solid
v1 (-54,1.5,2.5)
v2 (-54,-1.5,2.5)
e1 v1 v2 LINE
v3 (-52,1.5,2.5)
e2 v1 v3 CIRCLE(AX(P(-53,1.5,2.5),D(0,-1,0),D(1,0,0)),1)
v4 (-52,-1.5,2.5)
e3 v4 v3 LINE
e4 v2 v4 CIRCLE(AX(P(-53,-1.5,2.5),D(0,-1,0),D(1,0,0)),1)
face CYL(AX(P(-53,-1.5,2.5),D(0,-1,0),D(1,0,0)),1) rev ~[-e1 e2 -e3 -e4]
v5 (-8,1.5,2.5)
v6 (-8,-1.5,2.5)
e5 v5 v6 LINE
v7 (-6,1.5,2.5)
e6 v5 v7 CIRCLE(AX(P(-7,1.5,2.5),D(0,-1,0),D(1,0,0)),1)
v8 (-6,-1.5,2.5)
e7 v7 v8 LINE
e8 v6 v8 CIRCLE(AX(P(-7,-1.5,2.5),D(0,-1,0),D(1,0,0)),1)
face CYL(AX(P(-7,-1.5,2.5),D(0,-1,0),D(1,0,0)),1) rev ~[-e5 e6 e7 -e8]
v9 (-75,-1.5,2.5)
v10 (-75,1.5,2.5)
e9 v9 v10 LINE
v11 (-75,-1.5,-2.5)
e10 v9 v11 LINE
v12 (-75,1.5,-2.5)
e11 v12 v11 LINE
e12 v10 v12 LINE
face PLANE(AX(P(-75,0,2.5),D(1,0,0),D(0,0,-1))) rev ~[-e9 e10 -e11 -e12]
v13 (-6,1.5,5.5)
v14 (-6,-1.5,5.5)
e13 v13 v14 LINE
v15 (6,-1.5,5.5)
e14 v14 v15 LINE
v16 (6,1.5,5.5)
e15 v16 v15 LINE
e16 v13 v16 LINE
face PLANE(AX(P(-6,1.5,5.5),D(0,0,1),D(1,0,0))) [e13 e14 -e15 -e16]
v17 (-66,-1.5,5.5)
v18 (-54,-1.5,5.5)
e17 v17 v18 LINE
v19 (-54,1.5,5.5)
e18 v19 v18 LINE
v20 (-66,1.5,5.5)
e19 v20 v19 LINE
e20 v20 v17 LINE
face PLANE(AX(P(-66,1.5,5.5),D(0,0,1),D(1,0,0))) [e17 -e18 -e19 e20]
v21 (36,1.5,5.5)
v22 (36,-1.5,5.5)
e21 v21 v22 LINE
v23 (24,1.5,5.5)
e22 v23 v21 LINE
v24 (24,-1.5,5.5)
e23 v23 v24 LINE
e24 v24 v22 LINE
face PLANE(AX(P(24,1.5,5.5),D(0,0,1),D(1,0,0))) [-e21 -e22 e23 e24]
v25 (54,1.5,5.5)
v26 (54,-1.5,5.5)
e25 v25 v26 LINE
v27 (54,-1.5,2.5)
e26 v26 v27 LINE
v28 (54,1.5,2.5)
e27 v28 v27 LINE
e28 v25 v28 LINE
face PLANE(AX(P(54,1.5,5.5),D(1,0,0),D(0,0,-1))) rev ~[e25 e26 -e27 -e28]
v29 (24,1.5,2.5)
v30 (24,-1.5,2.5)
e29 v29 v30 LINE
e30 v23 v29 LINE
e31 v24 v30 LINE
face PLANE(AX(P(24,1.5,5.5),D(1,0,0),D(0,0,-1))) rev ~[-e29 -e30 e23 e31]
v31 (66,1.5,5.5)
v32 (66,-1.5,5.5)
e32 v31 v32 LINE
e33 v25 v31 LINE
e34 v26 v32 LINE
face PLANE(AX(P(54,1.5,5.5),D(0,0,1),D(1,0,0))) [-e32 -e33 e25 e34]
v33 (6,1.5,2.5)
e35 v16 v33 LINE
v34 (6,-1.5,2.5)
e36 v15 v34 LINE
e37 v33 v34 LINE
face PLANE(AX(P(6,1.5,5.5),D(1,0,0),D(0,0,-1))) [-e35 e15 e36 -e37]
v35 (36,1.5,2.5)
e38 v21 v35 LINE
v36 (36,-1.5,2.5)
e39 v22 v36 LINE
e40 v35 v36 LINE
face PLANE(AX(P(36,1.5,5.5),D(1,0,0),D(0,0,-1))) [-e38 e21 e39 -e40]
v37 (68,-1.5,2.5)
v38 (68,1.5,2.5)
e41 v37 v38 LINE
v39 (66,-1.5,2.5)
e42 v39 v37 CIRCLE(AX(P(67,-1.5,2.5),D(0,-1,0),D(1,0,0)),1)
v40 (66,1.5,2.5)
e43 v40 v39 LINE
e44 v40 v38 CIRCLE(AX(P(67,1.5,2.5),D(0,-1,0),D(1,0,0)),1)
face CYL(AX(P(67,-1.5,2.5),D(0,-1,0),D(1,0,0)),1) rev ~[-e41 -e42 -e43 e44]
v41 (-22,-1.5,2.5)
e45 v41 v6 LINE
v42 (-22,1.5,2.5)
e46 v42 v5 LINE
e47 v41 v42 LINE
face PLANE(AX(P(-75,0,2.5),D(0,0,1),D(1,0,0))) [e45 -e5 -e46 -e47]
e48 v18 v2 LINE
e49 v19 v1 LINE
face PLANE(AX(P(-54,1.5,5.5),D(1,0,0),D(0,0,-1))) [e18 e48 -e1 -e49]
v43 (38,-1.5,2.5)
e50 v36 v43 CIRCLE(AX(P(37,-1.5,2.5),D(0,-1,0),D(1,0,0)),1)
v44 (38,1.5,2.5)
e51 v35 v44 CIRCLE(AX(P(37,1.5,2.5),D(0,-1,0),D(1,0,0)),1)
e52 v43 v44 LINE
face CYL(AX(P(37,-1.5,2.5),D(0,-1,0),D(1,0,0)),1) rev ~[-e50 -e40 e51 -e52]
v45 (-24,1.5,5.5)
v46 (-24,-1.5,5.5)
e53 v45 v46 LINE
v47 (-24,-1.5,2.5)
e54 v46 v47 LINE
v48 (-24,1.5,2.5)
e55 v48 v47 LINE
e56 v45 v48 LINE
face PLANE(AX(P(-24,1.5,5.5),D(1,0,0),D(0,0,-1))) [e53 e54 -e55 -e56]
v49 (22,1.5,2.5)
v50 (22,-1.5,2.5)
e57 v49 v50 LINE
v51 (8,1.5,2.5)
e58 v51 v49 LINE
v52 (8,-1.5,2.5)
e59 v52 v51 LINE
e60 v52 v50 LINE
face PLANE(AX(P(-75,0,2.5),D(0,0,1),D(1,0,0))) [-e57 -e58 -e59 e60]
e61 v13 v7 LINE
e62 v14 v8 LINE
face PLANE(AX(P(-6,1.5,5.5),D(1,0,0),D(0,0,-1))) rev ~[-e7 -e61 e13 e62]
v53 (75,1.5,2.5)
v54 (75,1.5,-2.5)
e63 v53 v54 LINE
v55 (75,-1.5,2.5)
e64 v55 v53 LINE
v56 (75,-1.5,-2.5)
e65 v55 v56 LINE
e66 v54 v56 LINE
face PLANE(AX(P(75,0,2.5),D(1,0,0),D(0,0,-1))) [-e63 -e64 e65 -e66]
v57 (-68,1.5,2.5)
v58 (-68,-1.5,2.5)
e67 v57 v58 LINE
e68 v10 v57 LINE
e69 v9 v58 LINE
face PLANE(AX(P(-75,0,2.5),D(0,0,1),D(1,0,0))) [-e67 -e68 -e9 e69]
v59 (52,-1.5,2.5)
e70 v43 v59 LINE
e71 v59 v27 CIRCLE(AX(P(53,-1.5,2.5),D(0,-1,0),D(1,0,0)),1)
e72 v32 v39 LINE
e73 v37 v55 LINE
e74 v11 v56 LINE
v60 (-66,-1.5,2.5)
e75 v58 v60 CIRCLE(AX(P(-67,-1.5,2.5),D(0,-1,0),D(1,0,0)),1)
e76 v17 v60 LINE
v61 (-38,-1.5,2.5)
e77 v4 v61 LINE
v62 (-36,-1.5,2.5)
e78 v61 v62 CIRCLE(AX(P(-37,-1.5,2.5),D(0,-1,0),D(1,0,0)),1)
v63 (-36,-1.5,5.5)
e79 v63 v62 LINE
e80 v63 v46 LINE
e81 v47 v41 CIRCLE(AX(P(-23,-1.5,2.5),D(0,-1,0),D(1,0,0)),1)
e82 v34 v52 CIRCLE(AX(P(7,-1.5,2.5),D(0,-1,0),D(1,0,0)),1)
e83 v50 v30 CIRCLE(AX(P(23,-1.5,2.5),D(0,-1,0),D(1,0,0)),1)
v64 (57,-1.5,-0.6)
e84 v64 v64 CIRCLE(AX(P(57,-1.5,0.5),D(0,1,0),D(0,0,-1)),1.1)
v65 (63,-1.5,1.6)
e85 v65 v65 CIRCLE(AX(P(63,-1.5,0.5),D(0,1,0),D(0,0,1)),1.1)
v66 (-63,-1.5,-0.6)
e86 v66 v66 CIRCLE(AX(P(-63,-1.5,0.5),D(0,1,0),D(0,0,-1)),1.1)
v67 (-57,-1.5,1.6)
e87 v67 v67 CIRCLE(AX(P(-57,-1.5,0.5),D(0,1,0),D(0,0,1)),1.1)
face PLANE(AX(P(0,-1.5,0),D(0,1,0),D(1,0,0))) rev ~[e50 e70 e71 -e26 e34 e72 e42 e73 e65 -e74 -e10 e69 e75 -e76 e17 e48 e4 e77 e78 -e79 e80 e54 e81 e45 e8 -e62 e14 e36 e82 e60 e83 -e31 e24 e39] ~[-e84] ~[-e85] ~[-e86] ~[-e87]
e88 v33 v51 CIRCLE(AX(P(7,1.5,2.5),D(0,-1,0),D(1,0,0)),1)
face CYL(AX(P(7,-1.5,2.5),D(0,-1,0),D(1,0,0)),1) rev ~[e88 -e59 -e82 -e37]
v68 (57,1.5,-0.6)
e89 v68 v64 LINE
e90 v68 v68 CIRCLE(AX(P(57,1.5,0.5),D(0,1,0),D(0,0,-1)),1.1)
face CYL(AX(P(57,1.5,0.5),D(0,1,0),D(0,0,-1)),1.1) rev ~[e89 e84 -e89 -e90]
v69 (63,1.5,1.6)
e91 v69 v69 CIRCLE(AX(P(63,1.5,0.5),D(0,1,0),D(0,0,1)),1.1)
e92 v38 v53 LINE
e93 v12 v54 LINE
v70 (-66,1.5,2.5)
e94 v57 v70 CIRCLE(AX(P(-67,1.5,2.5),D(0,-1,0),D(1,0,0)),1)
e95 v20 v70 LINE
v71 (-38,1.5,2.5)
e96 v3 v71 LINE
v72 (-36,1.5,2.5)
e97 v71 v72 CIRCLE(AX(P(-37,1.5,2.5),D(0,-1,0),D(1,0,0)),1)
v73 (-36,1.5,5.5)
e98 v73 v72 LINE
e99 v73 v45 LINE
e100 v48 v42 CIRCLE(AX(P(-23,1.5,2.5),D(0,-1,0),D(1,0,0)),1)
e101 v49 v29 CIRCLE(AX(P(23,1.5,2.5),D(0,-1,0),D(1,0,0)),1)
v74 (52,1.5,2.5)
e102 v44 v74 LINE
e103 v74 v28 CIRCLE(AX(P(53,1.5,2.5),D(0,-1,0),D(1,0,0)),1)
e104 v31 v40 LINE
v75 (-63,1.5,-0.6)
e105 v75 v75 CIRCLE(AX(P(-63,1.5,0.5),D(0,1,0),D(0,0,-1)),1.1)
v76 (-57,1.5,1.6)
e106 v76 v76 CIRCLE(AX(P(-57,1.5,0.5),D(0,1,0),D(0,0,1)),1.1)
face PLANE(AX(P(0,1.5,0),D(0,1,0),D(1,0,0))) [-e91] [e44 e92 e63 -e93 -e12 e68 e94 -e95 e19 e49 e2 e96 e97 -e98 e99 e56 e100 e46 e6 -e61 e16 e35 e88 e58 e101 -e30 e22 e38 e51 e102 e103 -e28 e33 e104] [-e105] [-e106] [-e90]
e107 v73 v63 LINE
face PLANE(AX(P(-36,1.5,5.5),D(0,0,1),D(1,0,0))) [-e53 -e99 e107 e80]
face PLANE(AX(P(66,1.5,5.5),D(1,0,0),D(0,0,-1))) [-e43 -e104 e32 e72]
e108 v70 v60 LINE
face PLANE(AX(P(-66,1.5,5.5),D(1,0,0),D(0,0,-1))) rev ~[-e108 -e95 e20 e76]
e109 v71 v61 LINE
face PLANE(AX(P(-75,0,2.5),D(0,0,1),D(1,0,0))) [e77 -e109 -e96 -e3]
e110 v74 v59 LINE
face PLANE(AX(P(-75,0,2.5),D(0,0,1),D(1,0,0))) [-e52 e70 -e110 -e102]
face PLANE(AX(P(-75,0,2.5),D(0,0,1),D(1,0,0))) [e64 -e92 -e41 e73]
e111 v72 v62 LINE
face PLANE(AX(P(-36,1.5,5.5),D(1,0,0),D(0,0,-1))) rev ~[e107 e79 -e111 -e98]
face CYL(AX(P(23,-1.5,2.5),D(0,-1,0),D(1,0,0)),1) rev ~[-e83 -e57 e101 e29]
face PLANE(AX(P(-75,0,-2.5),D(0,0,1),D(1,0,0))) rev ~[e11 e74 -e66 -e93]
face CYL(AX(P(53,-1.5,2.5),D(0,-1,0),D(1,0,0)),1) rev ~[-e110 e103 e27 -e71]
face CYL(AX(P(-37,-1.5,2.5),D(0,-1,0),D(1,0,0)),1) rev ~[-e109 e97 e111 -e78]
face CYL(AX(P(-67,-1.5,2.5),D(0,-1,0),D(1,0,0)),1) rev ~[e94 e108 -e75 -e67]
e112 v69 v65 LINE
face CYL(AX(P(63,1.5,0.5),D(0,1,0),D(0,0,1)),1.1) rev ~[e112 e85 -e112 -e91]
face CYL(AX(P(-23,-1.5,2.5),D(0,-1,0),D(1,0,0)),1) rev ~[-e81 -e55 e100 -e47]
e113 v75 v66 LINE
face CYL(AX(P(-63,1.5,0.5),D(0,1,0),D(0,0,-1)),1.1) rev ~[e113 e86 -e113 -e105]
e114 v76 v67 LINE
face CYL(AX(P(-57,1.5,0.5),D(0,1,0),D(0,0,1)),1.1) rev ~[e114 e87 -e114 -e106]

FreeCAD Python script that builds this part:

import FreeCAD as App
import Part
import Sketcher

V = App.Vector

doc = App.newDocument("Part")
body = doc.addObject("PartDesign::Body", "Body")

# Sketch on XZ plane
sketch1 = doc.addObject("Sketcher::SketchObject", "Sketch")
body.addObject(sketch1)
sketch1.AttachmentSupport = (doc.XZ_Plane, [""])
sketch1.MapMode = "FlatFace"
sketch1.addGeometry(Part.LineSegment(V(-75, -2.5, 0), V(-75, 2.5, 0)), False)
sketch1.addGeometry(Part.LineSegment(V(-75, 2.5, 0), V(75, 2.5, 0)), False)
sketch1.addGeometry(Part.LineSegment(V(75, 2.5, 0), V(75, -2.5, 0)), False)
sketch1.addGeometry(Part.LineSegment(V(75, -2.5, 0), V(-75, -2.5, 0)), False)
sketch1.addConstraint(Sketcher.Constraint("Coincident", 0, 2, 1, 1))
sketch1.addConstraint(Sketcher.Constraint("Coincident", 1, 2, 2, 1))
sketch1.addConstraint(Sketcher.Constraint("Coincident", 2, 2, 3, 1))
sketch1.addConstraint(Sketcher.Constraint("Coincident", 3, 2, 0, 1))
sketch1.addConstraint(Sketcher.Constraint("Vertical", 0))
sketch1.addConstraint(Sketcher.Constraint("Horizontal", 1))
sketch1.addConstraint(Sketcher.Constraint("Vertical", 2))
sketch1.addConstraint(Sketcher.Constraint("Horizontal", 3))
sketch1.addConstraint(Sketcher.Constraint("Symmetric", 0, 2, 2, 2, -1, 1))
sketch1.addConstraint(Sketcher.Constraint("DistanceX", 1, 1, 1, 2, 150.0))
sketch1.addConstraint(Sketcher.Constraint("DistanceY", 0, 1, 0, 2, 5.0))
pad1 = doc.addObject("PartDesign::Pad", "Pad")
body.addObject(pad1)
pad1.Profile = sketch1
pad1.Length = 3
pad1.Midplane = True

# Sketch on XZ plane
sketch2 = doc.addObject("Sketcher::SketchObject", "Sketch001")
body.addObject(sketch2)
sketch2.AttachmentSupport = (doc.XZ_Plane, [""])
sketch2.MapMode = "FlatFace"
sketch2.AttachmentOffset = App.Placement(V(0, 0, -1.5), App.Rotation())
sketch2.addGeometry(Part.LineSegment(V(-66, 2.5, 0), V(-66, 5.5, 0)), False)
sketch2.addGeometry(Part.LineSegment(V(-66, 5.5, 0), V(-54, 5.5, 0)), False)
sketch2.addGeometry(Part.LineSegment(V(-54, 5.5, 0), V(-54, 2.5, 0)), False)
sketch2.addGeometry(Part.LineSegment(V(-54, 2.5, 0), V(-66, 2.5, 0)), False)
sketch2.addGeometry(Part.LineSegment(V(-36, 2.5, 0), V(-36, 5.5, 0)), False)
sketch2.addGeometry(Part.LineSegment(V(-36, 5.5, 0), V(-24, 5.5, 0)), False)
sketch2.addGeometry(Part.LineSegment(V(-24, 5.5, 0), V(-24, 2.5, 0)), False)
sketch2.addGeometry(Part.LineSegment(V(-24, 2.5, 0), V(-36, 2.5, 0)), False)
sketch2.addGeometry(Part.LineSegment(V(-6, 2.5, 0), V(-6, 5.5, 0)), False)
sketch2.addGeometry(Part.LineSegment(V(-6, 5.5, 0), V(6, 5.5, 0)), False)
sketch2.addGeometry(Part.LineSegment(V(6, 5.5, 0), V(6, 2.5, 0)), False)
sketch2.addGeometry(Part.LineSegment(V(6, 2.5, 0), V(-6, 2.5, 0)), False)
sketch2.addGeometry(Part.LineSegment(V(24, 2.5, 0), V(24, 5.5, 0)), False)
sketch2.addGeometry(Part.LineSegment(V(24, 5.5, 0), V(36, 5.5, 0)), False)
sketch2.addGeometry(Part.LineSegment(V(36, 5.5, 0), V(36, 2.5, 0)), False)
sketch2.addGeometry(Part.LineSegment(V(36, 2.5, 0), V(24, 2.5, 0)), False)
sketch2.addGeometry(Part.LineSegment(V(54, 2.5, 0), V(54, 5.5, 0)), False)
sketch2.addGeometry(Part.LineSegment(V(54, 5.5, 0), V(66, 5.5, 0)), False)
sketch2.addGeometry(Part.LineSegment(V(66, 5.5, 0), V(66, 2.5, 0)), False)
sketch2.addGeometry(Part.LineSegment(V(66, 2.5, 0), V(54, 2.5, 0)), False)
sketch2.addConstraint(Sketcher.Constraint("Coincident", 0, 2, 1, 1))
sketch2.addConstraint(Sketcher.Constraint("Coincident", 1, 2, 2, 1))
sketch2.addConstraint(Sketcher.Constraint("Coincident", 2, 2, 3, 1))
sketch2.addConstraint(Sketcher.Constraint("Coincident", 3, 2, 0, 1))
sketch2.addConstraint(Sketcher.Constraint("Coincident", 4, 2, 5, 1))
sketch2.addConstraint(Sketcher.Constraint("Coincident", 5, 2, 6, 1))
sketch2.addConstraint(Sketcher.Constraint("Coincident", 6, 2, 7, 1))
sketch2.addConstraint(Sketcher.Constraint("Coincident", 7, 2, 4, 1))
sketch2.addConstraint(Sketcher.Constraint("Coincident", 8, 2, 9, 1))
sketch2.addConstraint(Sketcher.Constraint("Coincident", 9, 2, 10, 1))
sketch2.addConstraint(Sketcher.Constraint("Coincident", 10, 2, 11, 1))
sketch2.addConstraint(Sketcher.Constraint("Coincident", 11, 2, 8, 1))
sketch2.addConstraint(Sketcher.Constraint("Coincident", 12, 2, 13, 1))
sketch2.addConstraint(Sketcher.Constraint("Coincident", 13, 2, 14, 1))
sketch2.addConstraint(Sketcher.Constraint("Coincident", 14, 2, 15, 1))
sketch2.addConstraint(Sketcher.Constraint("Coincident", 15, 2, 12, 1))
sketch2.addConstraint(Sketcher.Constraint("Coincident", 16, 2, 17, 1))
sketch2.addConstraint(Sketcher.Constraint("Coincident", 17, 2, 18, 1))
sketch2.addConstraint(Sketcher.Constraint("Coincident", 18, 2, 19, 1))
sketch2.addConstraint(Sketcher.Constraint("Coincident", 19, 2, 16, 1))
sketch2.addConstraint(Sketcher.Constraint("Vertical", 0))
sketch2.addConstraint(Sketcher.Constraint("Horizontal", 1))
sketch2.addConstraint(Sketcher.Constraint("Vertical", 2))
sketch2.addConstraint(Sketcher.Constraint("Horizontal", 3))
sketch2.addConstraint(Sketcher.Constraint("Vertical", 4))
sketch2.addConstraint(Sketcher.Constraint("Horizontal", 5))
sketch2.addConstraint(Sketcher.Constraint("Vertical", 6))
sketch2.addConstraint(Sketcher.Constraint("Horizontal", 7))
sketch2.addConstraint(Sketcher.Constraint("Vertical", 8))
sketch2.addConstraint(Sketcher.Constraint("Horizontal", 9))
sketch2.addConstraint(Sketcher.Constraint("Vertical", 10))
sketch2.addConstraint(Sketcher.Constraint("Horizontal", 11))
sketch2.addConstraint(Sketcher.Constraint("Vertical", 12))
sketch2.addConstraint(Sketcher.Constraint("Horizontal", 13))
sketch2.addConstraint(Sketcher.Constraint("Vertical", 14))
sketch2.addConstraint(Sketcher.Constraint("Horizontal", 15))
sketch2.addConstraint(Sketcher.Constraint("Vertical", 16))
sketch2.addConstraint(Sketcher.Constraint("Horizontal", 17))
sketch2.addConstraint(Sketcher.Constraint("Vertical", 18))
sketch2.addConstraint(Sketcher.Constraint("Horizontal", 19))
sketch2.addConstraint(Sketcher.Constraint("Symmetric", 5, 2, 12, 2, -2))
sketch2.addConstraint(Sketcher.Constraint("Symmetric", 7, 2, 14, 2, -2))
sketch2.addConstraint(Sketcher.Constraint("Symmetric", 1, 2, 16, 2, -2))
sketch2.addConstraint(Sketcher.Constraint("Symmetric", 3, 2, 18, 2, -2))
sketch2.addConstraint(Sketcher.Constraint("Horizontal", 1, 2, 4, 2))
sketch2.addConstraint(Sketcher.Constraint("Horizontal", 3, 2, 6, 2))
sketch2.addConstraint(Sketcher.Constraint("Horizontal", 5, 2, 8, 2))
sketch2.addConstraint(Sketcher.Constraint("Horizontal", 7, 2, 10, 2))
sketch2.addConstraint(Sketcher.Constraint("Equal", 3, 5))
sketch2.addConstraint(Sketcher.Constraint("Equal", 7, 9))
sketch2.addConstraint(Sketcher.Constraint("DistanceX", 1, 1, 1, 2, 12.0))
sketch2.addConstraint(Sketcher.Constraint("DistanceY", 0, 1, 0, 2, 3.0))
sketch2.addConstraint(Sketcher.Constraint("DistanceX", 0, 2, -1, 1, 66.0))
sketch2.addConstraint(Sketcher.Constraint("DistanceX", 4, 2, -1, 1, 36.0))
sketch2.addConstraint(Sketcher.Constraint("DistanceX", 8, 2, -1, 1, 6.0))
sketch2.addConstraint(Sketcher.Constraint("DistanceY", -1, 1, 0, 2, 5.5))
pad2 = doc.addObject("PartDesign::Pad", "Pad001")
body.addObject(pad2)
pad2.Profile = sketch2
pad2.Length = 3

# Sketch on XZ plane
sketch3 = doc.addObject("Sketcher::SketchObject", "Sketch002")
body.addObject(sketch3)
sketch3.AttachmentSupport = (doc.XZ_Plane, [""])
sketch3.MapMode = "FlatFace"
sketch3.AttachmentOffset = App.Placement(V(0, 0, 1.5), App.Rotation())
sketch3.addGeometry(Part.Circle(V(67, 2.5, 0), V(0, 0, 1), 1), False)
sketch3.addGeometry(Part.Circle(V(53, 2.5, 0), V(0, 0, 1), 1), False)
sketch3.addGeometry(Part.Circle(V(37, 2.5, 0), V(0, 0, 1), 1), False)
sketch3.addGeometry(Part.Circle(V(23, 2.5, 0), V(0, 0, 1), 1), False)
sketch3.addGeometry(Part.Circle(V(7, 2.5, 0), V(0, 0, 1), 1), False)
sketch3.addGeometry(Part.Circle(V(-7, 2.5, 0), V(0, 0, 1), 1), False)
sketch3.addGeometry(Part.Circle(V(-23, 2.5, 0), V(0, 0, 1), 1), False)
sketch3.addGeometry(Part.Circle(V(-37, 2.5, 0), V(0, 0, 1), 1), False)
sketch3.addGeometry(Part.Circle(V(-53, 2.5, 0), V(0, 0, 1), 1), False)
sketch3.addGeometry(Part.Circle(V(-67, 2.5, 0), V(0, 0, 1), 1), False)
sketch3.addConstraint(Sketcher.Constraint("Equal", 0, 1))
sketch3.addConstraint(Sketcher.Constraint("Equal", 1, 2))
sketch3.addConstraint(Sketcher.Constraint("Equal", 2, 3))
sketch3.addConstraint(Sketcher.Constraint("Equal", 3, 4))
sketch3.addConstraint(Sketcher.Constraint("Equal", 4, 5))
sketch3.addConstraint(Sketcher.Constraint("Equal", 5, 6))
sketch3.addConstraint(Sketcher.Constraint("Equal", 6, 7))
sketch3.addConstraint(Sketcher.Constraint("Equal", 7, 8))
sketch3.addConstraint(Sketcher.Constraint("Equal", 8, 9))
sketch3.addConstraint(Sketcher.Constraint("Symmetric", 4, 3, 5, 3, -2))
sketch3.addConstraint(Sketcher.Constraint("Symmetric", 3, 3, 6, 3, -2))
sketch3.addConstraint(Sketcher.Constraint("Symmetric", 2, 3, 7, 3, -2))
sketch3.addConstraint(Sketcher.Constraint("Symmetric", 1, 3, 8, 3, -2))
sketch3.addConstraint(Sketcher.Constraint("Symmetric", 0, 3, 9, 3, -2))
sketch3.addConstraint(Sketcher.Constraint("Horizontal", 0, 3, 1, 3))
sketch3.addConstraint(Sketcher.Constraint("Horizontal", 1, 3, 2, 3))
sketch3.addConstraint(Sketcher.Constraint("Horizontal", 2, 3, 3, 3))
sketch3.addConstraint(Sketcher.Constraint("Horizontal", 3, 3, 4, 3))
sketch3.addConstraint(Sketcher.Constraint("Diameter", 0, 2.0))
sketch3.addConstraint(Sketcher.Constraint("DistanceX", -1, 1, 0, 3, 67.0))
sketch3.addConstraint(Sketcher.Constraint("DistanceX", -1, 1, 1, 3, 53.0))
sketch3.addConstraint(Sketcher.Constraint("DistanceX", -1, 1, 2, 3, 37.0))
sketch3.addConstraint(Sketcher.Constraint("DistanceX", -1, 1, 3, 3, 23.0))
sketch3.addConstraint(Sketcher.Constraint("DistanceX", -1, 1, 4, 3, 7.0))
sketch3.addConstraint(Sketcher.Constraint("DistanceY", -1, 1, 0, 3, 2.5))
pocket1 = doc.addObject("PartDesign::Pocket", "Pocket")
body.addObject(pocket1)
pocket1.Profile = sketch3
pocket1.Type = "ThroughAll"

# Sketch on XZ plane
sketch4 = doc.addObject("Sketcher::SketchObject", "Sketch003")
body.addObject(sketch4)
sketch4.AttachmentSupport = (doc.XZ_Plane, [""])
sketch4.MapMode = "FlatFace"
sketch4.AttachmentOffset = App.Placement(V(0, 0, -1.5), App.Rotation())
sketch4.addGeometry(Part.Circle(V(63, 0.5, 0), V(0, 0, 1), 1.1), False)
sketch4.addGeometry(Part.Circle(V(57, 0.5, 0), V(0, 0, 1), 1.1), False)
sketch4.addGeometry(Part.Circle(V(-57, 0.5, 0), V(0, 0, 1), 1.1), False)
sketch4.addGeometry(Part.Circle(V(-63, 0.5, 0), V(0, 0, 1), 1.1), False)
sketch4.addConstraint(Sketcher.Constraint("Equal", 0, 1))
sketch4.addConstraint(Sketcher.Constraint("Equal", 1, 2))
sketch4.addConstraint(Sketcher.Constraint("Equal", 2, 3))
sketch4.addConstraint(Sketcher.Constraint("Symmetric", 1, 3, 2, 3, -2))
sketch4.addConstraint(Sketcher.Constraint("Symmetric", 0, 3, 3, 3, -2))
sketch4.addConstraint(Sketcher.Constraint("Horizontal", 0, 3, 1, 3))
sketch4.addConstraint(Sketcher.Constraint("Diameter", 0, 2.2))
sketch4.addConstraint(Sketcher.Constraint("DistanceX", -1, 1, 0, 3, 63.0))
sketch4.addConstraint(Sketcher.Constraint("DistanceX", -1, 1, 1, 3, 57.0))
sketch4.addConstraint(Sketcher.Constraint("DistanceY", -1, 1, 0, 3, 0.5))
pocket2 = doc.addObject("PartDesign::Pocket", "Pocket001")
body.addObject(pocket2)
pocket2.Profile = sketch4
pocket2.Type = "ThroughAll"
pocket2.Reversed = True

doc.recompute()
